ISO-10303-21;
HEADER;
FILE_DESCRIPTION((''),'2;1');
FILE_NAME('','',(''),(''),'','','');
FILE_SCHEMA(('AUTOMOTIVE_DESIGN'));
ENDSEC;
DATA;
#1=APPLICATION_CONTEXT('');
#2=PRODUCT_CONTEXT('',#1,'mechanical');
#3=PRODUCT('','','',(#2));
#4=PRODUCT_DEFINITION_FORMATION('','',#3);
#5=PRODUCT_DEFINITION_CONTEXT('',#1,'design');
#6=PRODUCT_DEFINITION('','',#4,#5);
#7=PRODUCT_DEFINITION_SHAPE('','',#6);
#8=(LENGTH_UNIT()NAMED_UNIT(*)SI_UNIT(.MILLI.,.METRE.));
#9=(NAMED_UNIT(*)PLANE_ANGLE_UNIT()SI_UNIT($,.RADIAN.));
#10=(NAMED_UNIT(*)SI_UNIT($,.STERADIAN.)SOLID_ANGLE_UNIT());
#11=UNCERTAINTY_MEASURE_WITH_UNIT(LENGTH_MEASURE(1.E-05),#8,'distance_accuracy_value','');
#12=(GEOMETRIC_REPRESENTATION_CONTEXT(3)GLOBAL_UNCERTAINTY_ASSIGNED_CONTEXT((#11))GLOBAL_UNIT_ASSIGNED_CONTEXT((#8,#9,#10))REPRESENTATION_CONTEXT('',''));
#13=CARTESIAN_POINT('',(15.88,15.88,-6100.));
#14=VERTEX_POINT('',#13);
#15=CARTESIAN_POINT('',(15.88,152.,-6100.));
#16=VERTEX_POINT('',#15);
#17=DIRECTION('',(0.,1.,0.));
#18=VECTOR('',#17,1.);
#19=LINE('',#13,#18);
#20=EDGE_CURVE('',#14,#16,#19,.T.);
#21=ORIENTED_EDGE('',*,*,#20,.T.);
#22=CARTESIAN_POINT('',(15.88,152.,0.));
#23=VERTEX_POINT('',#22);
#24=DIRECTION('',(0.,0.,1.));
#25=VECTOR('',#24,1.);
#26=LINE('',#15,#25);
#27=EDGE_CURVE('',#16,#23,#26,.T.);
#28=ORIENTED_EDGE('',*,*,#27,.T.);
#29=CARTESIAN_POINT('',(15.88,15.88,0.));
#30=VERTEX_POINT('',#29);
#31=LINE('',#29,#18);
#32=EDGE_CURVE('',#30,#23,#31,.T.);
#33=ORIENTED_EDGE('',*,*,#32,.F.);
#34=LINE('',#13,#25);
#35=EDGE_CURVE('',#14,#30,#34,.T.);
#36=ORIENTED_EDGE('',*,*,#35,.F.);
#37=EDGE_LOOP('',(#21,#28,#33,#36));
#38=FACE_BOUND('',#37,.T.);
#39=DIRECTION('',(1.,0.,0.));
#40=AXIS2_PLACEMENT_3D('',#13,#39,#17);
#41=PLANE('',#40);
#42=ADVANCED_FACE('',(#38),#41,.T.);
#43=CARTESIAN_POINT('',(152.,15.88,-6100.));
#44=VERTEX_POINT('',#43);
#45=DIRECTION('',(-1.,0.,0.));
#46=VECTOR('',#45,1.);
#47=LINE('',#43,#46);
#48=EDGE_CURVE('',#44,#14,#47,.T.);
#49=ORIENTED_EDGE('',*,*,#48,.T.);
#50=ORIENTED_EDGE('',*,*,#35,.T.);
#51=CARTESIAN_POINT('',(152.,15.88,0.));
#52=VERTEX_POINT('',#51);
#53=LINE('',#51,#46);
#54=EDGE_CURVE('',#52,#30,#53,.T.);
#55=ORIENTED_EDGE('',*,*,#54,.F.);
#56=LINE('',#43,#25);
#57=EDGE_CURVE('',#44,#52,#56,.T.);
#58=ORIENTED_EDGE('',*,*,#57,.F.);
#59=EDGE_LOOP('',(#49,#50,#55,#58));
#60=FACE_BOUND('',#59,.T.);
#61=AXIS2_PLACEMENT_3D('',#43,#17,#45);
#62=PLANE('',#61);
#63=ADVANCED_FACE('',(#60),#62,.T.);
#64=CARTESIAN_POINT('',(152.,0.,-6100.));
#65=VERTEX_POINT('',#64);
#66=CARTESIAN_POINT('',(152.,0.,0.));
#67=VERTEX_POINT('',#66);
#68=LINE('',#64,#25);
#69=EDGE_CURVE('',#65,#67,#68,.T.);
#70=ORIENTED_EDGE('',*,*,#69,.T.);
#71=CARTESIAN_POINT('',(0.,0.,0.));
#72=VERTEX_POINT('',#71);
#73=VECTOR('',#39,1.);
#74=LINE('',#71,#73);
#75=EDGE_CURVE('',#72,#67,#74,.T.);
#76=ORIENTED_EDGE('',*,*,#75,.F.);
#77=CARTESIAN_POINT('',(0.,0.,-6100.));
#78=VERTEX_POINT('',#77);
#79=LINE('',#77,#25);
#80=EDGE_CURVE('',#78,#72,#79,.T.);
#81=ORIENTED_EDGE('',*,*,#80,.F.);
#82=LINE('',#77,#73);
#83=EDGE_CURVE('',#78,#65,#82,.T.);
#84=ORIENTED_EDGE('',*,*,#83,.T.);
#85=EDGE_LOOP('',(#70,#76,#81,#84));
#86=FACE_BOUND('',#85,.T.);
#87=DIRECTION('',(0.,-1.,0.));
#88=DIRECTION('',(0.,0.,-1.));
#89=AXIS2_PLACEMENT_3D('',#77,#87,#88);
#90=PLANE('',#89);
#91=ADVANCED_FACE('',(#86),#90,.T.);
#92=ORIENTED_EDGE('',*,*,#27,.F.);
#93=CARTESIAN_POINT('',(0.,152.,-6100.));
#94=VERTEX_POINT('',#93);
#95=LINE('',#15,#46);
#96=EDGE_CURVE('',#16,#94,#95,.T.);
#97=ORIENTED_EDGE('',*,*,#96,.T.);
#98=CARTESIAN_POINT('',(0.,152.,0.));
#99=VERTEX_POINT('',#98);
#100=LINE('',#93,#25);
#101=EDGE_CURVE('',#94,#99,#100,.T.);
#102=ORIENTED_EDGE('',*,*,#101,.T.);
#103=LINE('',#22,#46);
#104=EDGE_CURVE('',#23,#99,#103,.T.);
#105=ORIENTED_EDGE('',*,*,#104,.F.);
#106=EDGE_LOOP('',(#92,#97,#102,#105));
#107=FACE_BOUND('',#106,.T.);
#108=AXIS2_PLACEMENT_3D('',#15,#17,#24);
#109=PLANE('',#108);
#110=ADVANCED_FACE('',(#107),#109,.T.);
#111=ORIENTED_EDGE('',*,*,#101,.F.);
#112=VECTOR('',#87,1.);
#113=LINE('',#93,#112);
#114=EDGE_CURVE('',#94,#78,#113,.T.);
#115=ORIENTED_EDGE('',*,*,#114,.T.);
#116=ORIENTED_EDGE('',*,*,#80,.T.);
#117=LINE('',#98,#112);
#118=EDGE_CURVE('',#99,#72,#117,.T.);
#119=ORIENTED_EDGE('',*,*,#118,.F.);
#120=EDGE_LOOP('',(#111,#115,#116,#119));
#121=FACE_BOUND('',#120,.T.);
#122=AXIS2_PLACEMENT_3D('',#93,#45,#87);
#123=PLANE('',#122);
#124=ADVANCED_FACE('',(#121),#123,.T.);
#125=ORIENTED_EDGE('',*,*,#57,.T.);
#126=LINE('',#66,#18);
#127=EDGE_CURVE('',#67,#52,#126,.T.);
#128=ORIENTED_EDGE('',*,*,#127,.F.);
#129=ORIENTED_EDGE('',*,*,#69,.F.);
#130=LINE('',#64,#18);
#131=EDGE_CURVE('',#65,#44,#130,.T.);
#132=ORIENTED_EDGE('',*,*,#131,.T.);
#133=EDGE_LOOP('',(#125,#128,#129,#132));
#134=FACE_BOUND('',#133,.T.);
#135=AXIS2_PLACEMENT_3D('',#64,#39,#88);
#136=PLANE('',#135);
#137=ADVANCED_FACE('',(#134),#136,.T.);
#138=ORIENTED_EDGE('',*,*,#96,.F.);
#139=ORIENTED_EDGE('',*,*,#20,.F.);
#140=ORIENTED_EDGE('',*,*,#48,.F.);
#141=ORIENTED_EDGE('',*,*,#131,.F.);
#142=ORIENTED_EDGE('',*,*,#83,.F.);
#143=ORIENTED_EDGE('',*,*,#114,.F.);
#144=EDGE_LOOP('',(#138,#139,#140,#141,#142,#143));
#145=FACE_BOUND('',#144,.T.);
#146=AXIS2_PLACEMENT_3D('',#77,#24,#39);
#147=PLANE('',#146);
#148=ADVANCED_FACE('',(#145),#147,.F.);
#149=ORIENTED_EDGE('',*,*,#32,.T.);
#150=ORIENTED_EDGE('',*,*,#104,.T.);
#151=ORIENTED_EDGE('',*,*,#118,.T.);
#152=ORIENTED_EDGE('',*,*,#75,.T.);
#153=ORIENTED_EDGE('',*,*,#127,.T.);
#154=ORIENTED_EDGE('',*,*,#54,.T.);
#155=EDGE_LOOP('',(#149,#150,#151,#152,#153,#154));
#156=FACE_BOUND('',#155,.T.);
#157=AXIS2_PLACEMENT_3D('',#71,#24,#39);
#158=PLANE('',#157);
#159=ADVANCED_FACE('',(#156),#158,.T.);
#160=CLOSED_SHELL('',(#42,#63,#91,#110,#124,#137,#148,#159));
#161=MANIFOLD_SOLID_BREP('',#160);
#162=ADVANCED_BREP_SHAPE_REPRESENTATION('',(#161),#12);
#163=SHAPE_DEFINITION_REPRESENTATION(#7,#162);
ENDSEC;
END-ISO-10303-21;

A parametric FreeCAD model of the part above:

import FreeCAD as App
import Part
import Sketcher


def add_polygon(sketch, points):
    """Adds a closed chain of lines whose ends are joined by coincident constraints."""
    first, n = sketch.GeometryCount, len(points)
    for a, b in zip(points, points[1:] + points[:1]):
        sketch.addGeometry(Part.LineSegment(App.Vector(*a, 0), App.Vector(*b, 0)), False)
    for i in range(n):
        sketch.addConstraint(Sketcher.Constraint("Coincident", first + i, 2, first + (i + 1) % n, 1))

doc = App.newDocument("Part")
body = doc.addObject("PartDesign::Body", "Body")

sketch1 = body.newObject("Sketcher::SketchObject", "Sketch")
sketch1.AttachmentSupport = (doc.getObject("XY_Plane"), [""])
sketch1.MapMode = "FlatFace"
add_polygon(sketch1, [(0, 152), (0, 0), (152, 0), (152, 16), (16, 16), (16, 152)])
sketch1.addConstraint([
    Sketcher.Constraint("Vertical", 0),
    Sketcher.Constraint("Horizontal", 1),
    Sketcher.Constraint("Vertical", 2),
    Sketcher.Constraint("Horizontal", 3),
    Sketcher.Constraint("Vertical", 4),
    Sketcher.Constraint("Horizontal", 5),
    Sketcher.Constraint("Coincident", 0, 2, -1, 1),
    Sketcher.Constraint("Equal", 1, 0),
    Sketcher.Constraint("Equal", 5, 2),
    Sketcher.Constraint("DistanceX", 1, 1, 1, 2, 152.0),
    Sketcher.Constraint("DistanceX", 3, 2, 3, 1, 136.12),
])
pad1 = body.newObject("PartDesign::Pad", "Pad")
pad1.Profile = sketch1
pad1.Length = 6100
pad1.Reversed = True

doc.recompute()
